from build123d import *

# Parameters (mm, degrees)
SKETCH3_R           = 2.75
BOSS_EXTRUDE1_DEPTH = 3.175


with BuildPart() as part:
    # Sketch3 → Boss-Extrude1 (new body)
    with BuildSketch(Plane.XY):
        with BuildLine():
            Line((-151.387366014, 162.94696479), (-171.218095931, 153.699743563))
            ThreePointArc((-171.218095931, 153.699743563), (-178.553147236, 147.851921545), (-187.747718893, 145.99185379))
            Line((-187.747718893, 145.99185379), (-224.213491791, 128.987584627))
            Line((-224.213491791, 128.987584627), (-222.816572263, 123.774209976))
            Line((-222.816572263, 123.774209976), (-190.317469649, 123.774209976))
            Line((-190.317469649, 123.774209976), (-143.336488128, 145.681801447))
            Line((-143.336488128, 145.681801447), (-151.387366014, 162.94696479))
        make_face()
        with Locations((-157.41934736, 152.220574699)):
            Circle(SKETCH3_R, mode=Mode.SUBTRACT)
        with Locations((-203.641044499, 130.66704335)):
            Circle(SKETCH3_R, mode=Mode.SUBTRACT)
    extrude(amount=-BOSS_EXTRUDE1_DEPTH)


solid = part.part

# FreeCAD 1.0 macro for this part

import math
import FreeCAD as App
import Part
import Sketcher

V = App.Vector
Q = App.Units.Quantity

doc = App.newDocument("Part")
body = doc.addObject("PartDesign::Body", "Body")

sketch1 = body.newObject("Sketcher::SketchObject", "Sketch")
sketch1.AttachmentSupport = (doc.getObject("XY_Plane"), [""])
sketch1.MapMode = "FlatFace"
sketch1.addGeometry([
    Part.LineSegment(V(-151.4, 162.9, 0), V(-171.2, 153.7, 0)),
    Part.ArcOfCircle(Part.Circle(V(-187, 166, 0), V(0, 0, 1), 20), math.radians(-92), math.radians(-38)),
    Part.LineSegment(V(-187.7, 146, 0), V(-224.2, 129, 0)),
    Part.LineSegment(V(-224.2, 129, 0), V(-222.8, 123.8, 0)),
    Part.LineSegment(V(-222.8, 123.8, 0), V(-190.3, 123.8, 0)),
    Part.LineSegment(V(-190.3, 123.8, 0), V(-143.3, 145.7, 0)),
    Part.LineSegment(V(-143.3, 145.7, 0), V(-151.4, 162.9, 0)),
    Part.Circle(V(-203.6, 130.7, 0), V(0, 0, 1), 2.8),
    Part.Circle(V(-157.4, 152.2, 0), V(0, 0, 1), 2.8),
], False)
sketch1.addConstraint([
    Sketcher.Constraint("Coincident", 0, 2, 1, 2),
    Sketcher.Constraint("Coincident", 1, 1, 2, 1),
    Sketcher.Constraint("Coincident", 2, 2, 3, 1),
    Sketcher.Constraint("Coincident", 3, 2, 4, 1),
    Sketcher.Constraint("Coincident", 4, 2, 5, 1),
    Sketcher.Constraint("Coincident", 5, 2, 6, 1),
    Sketcher.Constraint("Coincident", 6, 2, 0, 1),
    Sketcher.Constraint("Horizontal", 4),
    Sketcher.Constraint("Equal", 7, 8),
    Sketcher.Constraint("Parallel", 0, 2),
    Sketcher.Constraint("Parallel", 2, 5),
    Sketcher.Constraint("Perpendicular", 5, 6),
    Sketcher.Constraint("Radius", 1, 20.0),
    Sketcher.Constraint("Diameter", 7, 5.5),
    Sketcher.Constraint("Angle", 0, Q("-155 deg")),
    Sketcher.Constraint("Angle", 3, Q("-75 deg")),
    Sketcher.Constraint("Distance", 6, 19.05),
    Sketcher.Constraint("DistanceY", -1, 1, 5, 2, 145.681801),
    Sketcher.Constraint("DistanceY", 7, 3, 0, 2, 23.0327),
    Sketcher.Constraint("Distance", 0, 21.88079),
    Sketcher.Constraint("Distance", 2, 40.235529),
    Sketcher.Constraint("DistanceX", 4, 1, 4, 2, 32.499103),
    Sketcher.Constraint("DistanceX", 1, 1, -1, 1, 187.747719),
    Sketcher.Constraint("DistanceY", -1, 1, 3, 2, 123.77421),
    Sketcher.Constraint("DistanceX", 4, 2, -1, 1, 190.31747),
    Sketcher.Constraint("DistanceY", 7, 3, 8, 3, 21.553531),
    Sketcher.Constraint("DistanceX", 0, 2, 8, 3, 13.798749),
    Sketcher.Constraint("DistanceX", 7, 3, 0, 2, 32.422949),
])
pad1 = body.newObject("PartDesign::Pad", "Pad")
pad1.Profile = sketch1
pad1.Length = 3.175
pad1.Reversed = True

doc.recompute()
